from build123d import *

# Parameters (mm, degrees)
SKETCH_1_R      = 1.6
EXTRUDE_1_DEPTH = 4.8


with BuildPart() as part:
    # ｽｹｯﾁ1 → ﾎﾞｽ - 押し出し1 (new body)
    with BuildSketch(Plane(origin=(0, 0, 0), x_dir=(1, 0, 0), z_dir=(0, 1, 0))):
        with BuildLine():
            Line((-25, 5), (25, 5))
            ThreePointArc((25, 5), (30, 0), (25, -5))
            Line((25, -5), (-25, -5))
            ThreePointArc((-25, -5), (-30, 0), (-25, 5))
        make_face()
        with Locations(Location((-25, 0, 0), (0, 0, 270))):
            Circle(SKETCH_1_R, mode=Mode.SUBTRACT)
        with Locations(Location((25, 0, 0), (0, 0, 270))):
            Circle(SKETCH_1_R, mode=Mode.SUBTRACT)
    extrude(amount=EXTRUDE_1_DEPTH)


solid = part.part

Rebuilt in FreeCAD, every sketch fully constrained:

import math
import FreeCAD as App
import Part
import Sketcher
Q = App.Units.Quantity

doc = App.newDocument("Part")
body = doc.addObject("PartDesign::Body", "Body")

# Sketch on XZ plane
sketch1 = doc.addObject("Sketcher::SketchObject", "Sketch")
body.addObject(sketch1)
sketch1.AttachmentSupport = (doc.XZ_Plane, [""])
sketch1.MapMode = "FlatFace"
sketch1.addGeometry([
    Part.LineSegment(App.Vector(25, -5, 0), App.Vector(-25, -5, 0)),  # 0
    Part.ArcOfCircle(Part.Circle(App.Vector(-25, 0, 0), App.Vector(0, 0, 1), 5), math.radians(90), math.radians(270)),  # 1
    Part.LineSegment(App.Vector(-25, 5, 0), App.Vector(25, 5, 0)),  # 2
    Part.ArcOfCircle(Part.Circle(App.Vector(25, 0, 0), App.Vector(0, 0, 1), 5), math.radians(-90), math.radians(90)),  # 3
    Part.Circle(App.Vector(25, 0, 0), App.Vector(0, 0, 1), 1.6),  # 4
    Part.Circle(App.Vector(-25, 0, 0), App.Vector(0, 0, 1), 1.6),  # 5
], False)
sketch1.addConstraint([
    Sketcher.Constraint("Tangent", 0, 2, 1, 2),
    Sketcher.Constraint("Tangent", 1, 1, 2, 1),
    Sketcher.Constraint("Tangent", 2, 2, 3, 2),
    Sketcher.Constraint("Tangent", 3, 1, 0, 1),
    Sketcher.Constraint("Horizontal", 0),
    Sketcher.Constraint("Horizontal", 2),
    Sketcher.Constraint("Coincident", 4, 3, 3, 3),
    Sketcher.Constraint("Coincident", 5, 3, 1, 3),
    Sketcher.Constraint("Equal", 4, 5),
    Sketcher.Constraint("Symmetric", 1, 3, 3, 3, -1, 1),
    Sketcher.Constraint("Radius", 1, Q("5 mm")),
    Sketcher.Constraint("Diameter", 4, Q("3.2 mm")),
    Sketcher.Constraint("DistanceX", 0, 2, 0, 1, Q("50 mm")),
])
pad1 = doc.addObject("PartDesign::Pad", "Pad")
body.addObject(pad1)
pad1.Profile = sketch1
pad1.Length = 4.8
pad1.Reversed = True

doc.recompute()
